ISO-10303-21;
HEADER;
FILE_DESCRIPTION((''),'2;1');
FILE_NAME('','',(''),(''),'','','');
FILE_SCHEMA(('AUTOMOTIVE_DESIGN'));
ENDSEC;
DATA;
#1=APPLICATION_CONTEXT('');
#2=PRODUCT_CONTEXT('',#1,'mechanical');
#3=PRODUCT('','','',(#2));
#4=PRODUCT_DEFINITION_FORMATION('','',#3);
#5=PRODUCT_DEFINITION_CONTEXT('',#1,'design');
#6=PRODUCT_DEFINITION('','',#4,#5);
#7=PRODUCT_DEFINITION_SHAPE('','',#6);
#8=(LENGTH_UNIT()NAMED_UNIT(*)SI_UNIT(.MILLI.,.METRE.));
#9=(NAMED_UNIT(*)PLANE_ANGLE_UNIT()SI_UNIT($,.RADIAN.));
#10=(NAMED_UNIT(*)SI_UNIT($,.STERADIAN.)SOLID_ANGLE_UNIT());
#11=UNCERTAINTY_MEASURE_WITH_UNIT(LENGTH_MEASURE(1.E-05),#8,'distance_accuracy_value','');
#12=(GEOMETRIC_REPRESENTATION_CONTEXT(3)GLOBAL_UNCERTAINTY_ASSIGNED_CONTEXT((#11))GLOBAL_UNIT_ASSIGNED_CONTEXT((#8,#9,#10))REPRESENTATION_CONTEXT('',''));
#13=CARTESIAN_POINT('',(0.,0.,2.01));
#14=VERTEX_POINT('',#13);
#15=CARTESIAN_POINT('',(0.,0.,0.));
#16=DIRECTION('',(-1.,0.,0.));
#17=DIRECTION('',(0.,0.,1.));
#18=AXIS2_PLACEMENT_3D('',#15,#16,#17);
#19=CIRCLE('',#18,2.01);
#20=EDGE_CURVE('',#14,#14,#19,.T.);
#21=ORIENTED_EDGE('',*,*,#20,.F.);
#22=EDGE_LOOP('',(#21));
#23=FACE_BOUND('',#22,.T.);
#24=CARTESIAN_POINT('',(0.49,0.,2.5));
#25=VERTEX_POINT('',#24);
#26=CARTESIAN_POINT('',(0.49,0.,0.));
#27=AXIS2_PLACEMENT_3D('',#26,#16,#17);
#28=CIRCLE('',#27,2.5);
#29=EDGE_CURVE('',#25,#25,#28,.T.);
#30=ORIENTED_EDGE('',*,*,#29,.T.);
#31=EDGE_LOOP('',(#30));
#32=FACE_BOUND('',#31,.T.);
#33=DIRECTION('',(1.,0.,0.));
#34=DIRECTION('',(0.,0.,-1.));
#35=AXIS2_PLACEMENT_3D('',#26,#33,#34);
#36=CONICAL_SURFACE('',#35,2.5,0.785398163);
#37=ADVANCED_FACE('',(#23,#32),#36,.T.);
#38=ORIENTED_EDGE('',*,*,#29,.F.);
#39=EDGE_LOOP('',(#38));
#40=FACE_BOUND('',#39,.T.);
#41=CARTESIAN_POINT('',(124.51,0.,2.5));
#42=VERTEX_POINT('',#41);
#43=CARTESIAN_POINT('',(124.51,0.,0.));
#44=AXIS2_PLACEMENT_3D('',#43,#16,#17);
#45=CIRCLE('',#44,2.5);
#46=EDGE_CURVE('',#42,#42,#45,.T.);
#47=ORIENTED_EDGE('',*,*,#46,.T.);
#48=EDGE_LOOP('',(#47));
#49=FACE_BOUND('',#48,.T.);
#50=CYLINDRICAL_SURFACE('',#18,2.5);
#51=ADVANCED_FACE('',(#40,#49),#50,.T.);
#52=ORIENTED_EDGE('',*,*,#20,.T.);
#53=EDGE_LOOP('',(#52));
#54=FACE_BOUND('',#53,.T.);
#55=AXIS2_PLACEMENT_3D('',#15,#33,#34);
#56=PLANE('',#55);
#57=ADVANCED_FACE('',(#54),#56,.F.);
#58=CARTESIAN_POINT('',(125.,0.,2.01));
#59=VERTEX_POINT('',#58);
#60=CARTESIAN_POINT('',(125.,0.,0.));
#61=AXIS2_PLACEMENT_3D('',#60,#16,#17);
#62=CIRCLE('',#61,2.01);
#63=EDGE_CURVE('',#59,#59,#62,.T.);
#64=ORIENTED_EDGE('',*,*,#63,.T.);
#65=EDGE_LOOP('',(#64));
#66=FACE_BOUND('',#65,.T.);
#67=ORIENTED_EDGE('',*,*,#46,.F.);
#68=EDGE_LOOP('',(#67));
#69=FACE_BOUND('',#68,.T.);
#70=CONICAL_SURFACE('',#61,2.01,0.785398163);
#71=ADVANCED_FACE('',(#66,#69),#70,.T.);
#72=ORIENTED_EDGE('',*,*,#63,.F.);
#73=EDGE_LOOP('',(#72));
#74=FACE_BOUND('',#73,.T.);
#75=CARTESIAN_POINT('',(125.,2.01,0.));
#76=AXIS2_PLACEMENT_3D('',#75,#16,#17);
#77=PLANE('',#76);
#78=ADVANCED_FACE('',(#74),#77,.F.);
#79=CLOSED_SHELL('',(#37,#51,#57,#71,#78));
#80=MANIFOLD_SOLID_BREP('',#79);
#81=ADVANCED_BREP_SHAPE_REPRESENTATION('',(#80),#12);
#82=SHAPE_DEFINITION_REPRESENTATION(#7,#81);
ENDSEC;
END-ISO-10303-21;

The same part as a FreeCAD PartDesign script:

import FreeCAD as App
import Part
import Sketcher

V = App.Vector


def add_polygon(sketch, points):
    """Adds a closed chain of lines whose ends are joined by coincident constraints."""
    first, n = sketch.GeometryCount, len(points)
    for a, b in zip(points, points[1:] + points[:1]):
        sketch.addGeometry(Part.LineSegment(App.Vector(*a, 0), App.Vector(*b, 0)), False)
    for i in range(n):
        sketch.addConstraint(Sketcher.Constraint("Coincident", first + i, 2, first + (i + 1) % n, 1))

doc = App.newDocument("Part")
params = doc.addObject("Spreadsheet::Sheet", "Params")
for row, (alias, value) in enumerate([
    ("sketch1_width", "125 mm"),
    ("sketch1_width2", "124.02 mm"),
    ("sketch1_height", "2.01 mm"),
    ("revolution_angle", "360 deg"),
], start=1):
    params.set(f"A{row}", alias)
    params.set(f"B{row}", "=" + value)
    params.setAlias(f"B{row}", alias)

body = doc.addObject("PartDesign::Body", "Body")

sketch1 = doc.addObject("Sketcher::SketchObject", "Sketch")
body.addObject(sketch1)
sketch1.AttachmentSupport = (doc.XY_Plane, [""])
sketch1.MapMode = "FlatFace"
add_polygon(sketch1, [(0, 2.01), (0, 0), (125, 0), (125, 2.01), (124.51, 2.5), (0.49, 2.5)])
sketch1.addConstraint([
    Sketcher.Constraint("Vertical", 0),
    Sketcher.Constraint("Horizontal", 1),
    Sketcher.Constraint("Vertical", 2),
    Sketcher.Constraint("Horizontal", 4),
    Sketcher.Constraint("Coincident", 0, 2, -1, 1),
    Sketcher.Constraint("Perpendicular", 3, 5),
    Sketcher.Constraint("Horizontal", 2, 2, 5, 2),
    Sketcher.Constraint("Equal", 3, 5),
    Sketcher.Constraint("DistanceX", 1, 1, 1, 2, 125.0),
    Sketcher.Constraint("DistanceX", 4, 2, 4, 1, 124.02),
    Sketcher.Constraint("DistanceY", 0, 2, 0, 1, 2.01),
])
sketch1.setExpression("Constraints[14]", "Params.sketch1_width")
sketch1.setExpression("Constraints[15]", "Params.sketch1_width2")
sketch1.setExpression("Constraints[16]", "Params.sketch1_height")
revolution = doc.addObject("PartDesign::Revolution", "Revolution")
body.addObject(revolution)
revolution.Profile = sketch1
revolution.ReferenceAxis = (sketch1, ["H_Axis"])
revolution.setExpression("Angle", "Params.revolution_angle")

doc.recompute()
